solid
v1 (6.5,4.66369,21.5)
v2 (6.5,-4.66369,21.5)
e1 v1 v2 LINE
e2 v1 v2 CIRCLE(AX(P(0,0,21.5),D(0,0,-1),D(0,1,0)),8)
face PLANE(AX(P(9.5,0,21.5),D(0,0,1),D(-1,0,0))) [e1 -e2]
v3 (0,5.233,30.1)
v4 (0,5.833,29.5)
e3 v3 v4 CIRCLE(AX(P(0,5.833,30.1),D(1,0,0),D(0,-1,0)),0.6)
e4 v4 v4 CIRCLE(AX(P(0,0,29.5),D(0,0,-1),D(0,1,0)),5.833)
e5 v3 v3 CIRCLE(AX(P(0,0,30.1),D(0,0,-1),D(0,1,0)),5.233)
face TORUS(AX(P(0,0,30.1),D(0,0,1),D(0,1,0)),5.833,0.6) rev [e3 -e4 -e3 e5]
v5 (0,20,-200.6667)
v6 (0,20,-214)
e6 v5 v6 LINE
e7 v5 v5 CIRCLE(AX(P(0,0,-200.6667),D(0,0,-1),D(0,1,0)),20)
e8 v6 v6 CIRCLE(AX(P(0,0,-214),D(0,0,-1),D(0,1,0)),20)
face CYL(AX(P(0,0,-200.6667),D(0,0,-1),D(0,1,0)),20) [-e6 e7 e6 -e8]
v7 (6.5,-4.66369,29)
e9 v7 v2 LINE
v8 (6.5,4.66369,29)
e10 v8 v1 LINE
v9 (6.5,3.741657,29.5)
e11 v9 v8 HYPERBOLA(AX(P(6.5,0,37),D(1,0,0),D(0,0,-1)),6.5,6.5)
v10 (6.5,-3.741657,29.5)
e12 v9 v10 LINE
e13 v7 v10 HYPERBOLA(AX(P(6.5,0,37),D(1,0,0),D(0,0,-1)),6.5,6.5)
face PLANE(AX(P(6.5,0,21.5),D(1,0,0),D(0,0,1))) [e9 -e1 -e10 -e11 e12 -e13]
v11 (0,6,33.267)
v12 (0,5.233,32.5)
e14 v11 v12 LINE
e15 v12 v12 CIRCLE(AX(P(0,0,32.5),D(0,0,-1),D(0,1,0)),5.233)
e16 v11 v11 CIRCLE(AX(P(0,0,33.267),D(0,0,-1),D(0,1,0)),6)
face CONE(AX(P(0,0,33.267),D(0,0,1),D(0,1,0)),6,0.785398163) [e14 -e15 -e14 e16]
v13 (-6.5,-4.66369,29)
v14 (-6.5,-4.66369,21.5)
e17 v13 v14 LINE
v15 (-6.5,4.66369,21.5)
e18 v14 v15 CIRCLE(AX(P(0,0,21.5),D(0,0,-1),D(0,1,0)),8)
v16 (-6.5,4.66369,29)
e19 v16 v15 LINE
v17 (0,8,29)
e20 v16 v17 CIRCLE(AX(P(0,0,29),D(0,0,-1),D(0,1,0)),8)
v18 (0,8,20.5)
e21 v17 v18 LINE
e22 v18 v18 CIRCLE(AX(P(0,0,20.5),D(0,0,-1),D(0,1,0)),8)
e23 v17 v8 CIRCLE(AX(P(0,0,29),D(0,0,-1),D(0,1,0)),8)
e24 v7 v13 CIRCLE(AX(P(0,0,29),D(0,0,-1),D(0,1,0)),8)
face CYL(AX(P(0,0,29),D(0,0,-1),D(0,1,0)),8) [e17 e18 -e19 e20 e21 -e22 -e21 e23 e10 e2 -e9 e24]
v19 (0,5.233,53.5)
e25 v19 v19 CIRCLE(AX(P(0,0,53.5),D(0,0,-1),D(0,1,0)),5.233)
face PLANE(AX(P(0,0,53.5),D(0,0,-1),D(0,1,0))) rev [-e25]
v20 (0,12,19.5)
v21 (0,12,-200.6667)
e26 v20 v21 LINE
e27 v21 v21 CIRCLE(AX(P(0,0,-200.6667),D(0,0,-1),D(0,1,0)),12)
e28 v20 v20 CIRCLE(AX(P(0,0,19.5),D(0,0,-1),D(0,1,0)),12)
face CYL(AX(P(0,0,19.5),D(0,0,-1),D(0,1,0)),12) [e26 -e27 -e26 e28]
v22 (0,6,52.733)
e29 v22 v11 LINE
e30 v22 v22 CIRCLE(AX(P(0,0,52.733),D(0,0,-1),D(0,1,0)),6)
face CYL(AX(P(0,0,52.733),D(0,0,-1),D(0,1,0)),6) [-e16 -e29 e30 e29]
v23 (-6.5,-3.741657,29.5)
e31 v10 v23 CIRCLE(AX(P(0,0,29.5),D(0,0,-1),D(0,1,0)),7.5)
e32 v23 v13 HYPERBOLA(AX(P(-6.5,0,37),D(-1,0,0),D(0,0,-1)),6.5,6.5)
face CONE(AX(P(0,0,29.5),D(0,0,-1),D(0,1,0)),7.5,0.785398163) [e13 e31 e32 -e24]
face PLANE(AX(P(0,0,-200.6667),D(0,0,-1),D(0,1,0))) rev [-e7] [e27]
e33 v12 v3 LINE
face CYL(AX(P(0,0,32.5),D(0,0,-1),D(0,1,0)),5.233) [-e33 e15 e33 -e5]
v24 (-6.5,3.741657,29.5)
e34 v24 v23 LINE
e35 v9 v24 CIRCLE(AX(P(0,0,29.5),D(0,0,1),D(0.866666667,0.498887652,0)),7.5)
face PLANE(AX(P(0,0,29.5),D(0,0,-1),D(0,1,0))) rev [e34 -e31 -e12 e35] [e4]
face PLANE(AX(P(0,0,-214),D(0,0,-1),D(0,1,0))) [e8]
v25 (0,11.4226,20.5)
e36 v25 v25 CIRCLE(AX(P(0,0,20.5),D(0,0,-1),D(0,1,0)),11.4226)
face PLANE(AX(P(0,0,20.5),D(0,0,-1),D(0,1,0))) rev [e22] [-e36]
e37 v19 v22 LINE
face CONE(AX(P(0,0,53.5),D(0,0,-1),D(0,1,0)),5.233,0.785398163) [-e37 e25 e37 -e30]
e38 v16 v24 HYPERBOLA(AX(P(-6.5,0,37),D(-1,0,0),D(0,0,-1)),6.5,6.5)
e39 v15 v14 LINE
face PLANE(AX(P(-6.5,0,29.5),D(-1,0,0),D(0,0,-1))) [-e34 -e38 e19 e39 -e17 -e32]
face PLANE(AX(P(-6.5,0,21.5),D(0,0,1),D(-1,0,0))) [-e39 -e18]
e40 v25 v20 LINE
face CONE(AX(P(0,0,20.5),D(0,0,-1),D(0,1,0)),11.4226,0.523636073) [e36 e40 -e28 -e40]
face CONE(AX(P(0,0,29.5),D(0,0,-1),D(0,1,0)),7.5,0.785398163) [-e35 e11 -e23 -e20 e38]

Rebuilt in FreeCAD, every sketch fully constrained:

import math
import FreeCAD as App
import Part
import Sketcher
Q = App.Units.Quantity

doc = App.newDocument("Part")
body = doc.addObject("PartDesign::Body", "Body")

# Sketch on YZ plane
sketch1 = doc.addObject("Sketcher::SketchObject", "Sketch")
body.addObject(sketch1)
sketch1.AttachmentSupport = (doc.YZ_Plane, [""])
sketch1.MapMode = "FlatFace"
sketch1.addGeometry(Part.LineSegment(App.Vector(0, 29.5, 0), App.Vector(0, -214, 0)), False)
sketch1.addGeometry(Part.LineSegment(App.Vector(0, -214, 0), App.Vector(20, -214, 0)), False)
sketch1.addGeometry(Part.LineSegment(App.Vector(20, -214, 0), App.Vector(20, -200.7, 0)), False)
sketch1.addGeometry(Part.LineSegment(App.Vector(20, -200.7, 0), App.Vector(12, -200.7, 0)), False)
sketch1.addGeometry(Part.LineSegment(App.Vector(12, -200.7, 0), App.Vector(12, 19.5, 0)), False)
sketch1.addGeometry(Part.LineSegment(App.Vector(12, 19.5, 0), App.Vector(11.4, 20.5, 0)), False)
sketch1.addGeometry(Part.LineSegment(App.Vector(11.4, 20.5, 0), App.Vector(8, 20.5, 0)), False)
sketch1.addGeometry(Part.LineSegment(App.Vector(8, 20.5, 0), App.Vector(8, 29, 0)), False)
sketch1.addGeometry(Part.LineSegment(App.Vector(8, 29, 0), App.Vector(7.5, 29.5, 0)), False)
sketch1.addGeometry(Part.LineSegment(App.Vector(7.5, 29.5, 0), App.Vector(0, 29.5, 0)), False)
sketch1.addConstraint(Sketcher.Constraint("Coincident", 0, 2, 1, 1))
sketch1.addConstraint(Sketcher.Constraint("Coincident", 1, 2, 2, 1))
sketch1.addConstraint(Sketcher.Constraint("Coincident", 2, 2, 3, 1))
sketch1.addConstraint(Sketcher.Constraint("Coincident", 3, 2, 4, 1))
sketch1.addConstraint(Sketcher.Constraint("Coincident", 4, 2, 5, 1))
sketch1.addConstraint(Sketcher.Constraint("Coincident", 5, 2, 6, 1))
sketch1.addConstraint(Sketcher.Constraint("Coincident", 6, 2, 7, 1))
sketch1.addConstraint(Sketcher.Constraint("Coincident", 7, 2, 8, 1))
sketch1.addConstraint(Sketcher.Constraint("Coincident", 8, 2, 9, 1))
sketch1.addConstraint(Sketcher.Constraint("Coincident", 9, 2, 0, 1))
sketch1.addConstraint(Sketcher.Constraint("Vertical", 0))
sketch1.addConstraint(Sketcher.Constraint("Horizontal", 1))
sketch1.addConstraint(Sketcher.Constraint("Vertical", 2))
sketch1.addConstraint(Sketcher.Constraint("Horizontal", 3))
sketch1.addConstraint(Sketcher.Constraint("Vertical", 4))
sketch1.addConstraint(Sketcher.Constraint("Horizontal", 6))
sketch1.addConstraint(Sketcher.Constraint("Vertical", 7))
sketch1.addConstraint(Sketcher.Constraint("Horizontal", 9))
sketch1.addConstraint(Sketcher.Constraint("PointOnObject", 0, 2, -2))
sketch1.addConstraint(Sketcher.Constraint("DistanceX", 1, 1, 1, 2, 20.0))
sketch1.addConstraint(Sketcher.Constraint("DistanceX", 3, 2, 3, 1, 8.0))
sketch1.addConstraint(Sketcher.Constraint("Angle", 8, Q("135 deg")))
sketch1.addConstraint(Sketcher.Constraint("DistanceX", 9, 2, 9, 1, 7.5))
sketch1.addConstraint(Sketcher.Constraint("DistanceY", 0, 2, 0, 1, 243.5))
sketch1.addConstraint(Sketcher.Constraint("DistanceY", 7, 1, 7, 2, 8.5))
sketch1.addConstraint(Sketcher.Constraint("DistanceY", 0, 2, -1, 1, 214.0))
sketch1.addConstraint(Sketcher.Constraint("DistanceX", -1, 1, 6, 2, 8.0))
sketch1.addConstraint(Sketcher.Constraint("DistanceY", 4, 2, 5, 2, 1.0))
sketch1.addConstraint(Sketcher.Constraint("DistanceX", 6, 2, 6, 1, 3.4226))
sketch1.addConstraint(Sketcher.Constraint("DistanceY", 2, 1, 2, 2, 13.3333))
revolution = doc.addObject("PartDesign::Revolution", "Revolution")
body.addObject(revolution)
revolution.Profile = sketch1
revolution.ReferenceAxis = (sketch1, ["V_Axis"])
revolution.Angle = 360

# Sketch on XZ plane
sketch2 = doc.addObject("Sketcher::SketchObject", "Sketch001")
body.addObject(sketch2)
sketch2.AttachmentSupport = (doc.XZ_Plane, [""])
sketch2.MapMode = "FlatFace"
sketch2.addGeometry(Part.LineSegment(App.Vector(-6.5, 21.5, 0), App.Vector(-9.5, 21.5, 0)), False)
sketch2.addGeometry(Part.LineSegment(App.Vector(-9.5, 21.5, 0), App.Vector(-9.5, 32.5, 0)), False)
sketch2.addGeometry(Part.LineSegment(App.Vector(-9.5, 32.5, 0), App.Vector(9.5, 32.5, 0)), False)
sketch2.addGeometry(Part.LineSegment(App.Vector(9.5, 32.5, 0), App.Vector(9.5, 21.5, 0)), False)
sketch2.addGeometry(Part.LineSegment(App.Vector(9.5, 21.5, 0), App.Vector(6.5, 21.5, 0)), False)
sketch2.addGeometry(Part.LineSegment(App.Vector(6.5, 21.5, 0), App.Vector(6.5, 29.5, 0)), False)
sketch2.addGeometry(Part.LineSegment(App.Vector(6.5, 29.5, 0), App.Vector(-6.5, 29.5, 0)), False)
sketch2.addGeometry(Part.LineSegment(App.Vector(-6.5, 29.5, 0), App.Vector(-6.5, 21.5, 0)), False)
sketch2.addConstraint(Sketcher.Constraint("Coincident", 0, 2, 1, 1))
sketch2.addConstraint(Sketcher.Constraint("Coincident", 1, 2, 2, 1))
sketch2.addConstraint(Sketcher.Constraint("Coincident", 2, 2, 3, 1))
sketch2.addConstraint(Sketcher.Constraint("Coincident", 3, 2, 4, 1))
sketch2.addConstraint(Sketcher.Constraint("Coincident", 4, 2, 5, 1))
sketch2.addConstraint(Sketcher.Constraint("Coincident", 5, 2, 6, 1))
sketch2.addConstraint(Sketcher.Constraint("Coincident", 6, 2, 7, 1))
sketch2.addConstraint(Sketcher.Constraint("Coincident", 7, 2, 0, 1))
sketch2.addConstraint(Sketcher.Constraint("Horizontal", 0))
sketch2.addConstraint(Sketcher.Constraint("Vertical", 1))
sketch2.addConstraint(Sketcher.Constraint("Horizontal", 2))
sketch2.addConstraint(Sketcher.Constraint("Vertical", 3))
sketch2.addConstraint(Sketcher.Constraint("Horizontal", 4))
sketch2.addConstraint(Sketcher.Constraint("Vertical", 5))
sketch2.addConstraint(Sketcher.Constraint("Horizontal", 6))
sketch2.addConstraint(Sketcher.Constraint("Vertical", 7))
sketch2.addConstraint(Sketcher.Constraint("Symmetric", 0, 2, 3, 2, -2))
sketch2.addConstraint(Sketcher.Constraint("Equal", 0, 4))
sketch2.addConstraint(Sketcher.Constraint("DistanceX", 0, 2, 0, 1, 3.0))
sketch2.addConstraint(Sketcher.Constraint("DistanceX", 2, 1, 2, 2, 19.0))
sketch2.addConstraint(Sketcher.Constraint("DistanceY", 1, 1, 1, 2, 11.0))
sketch2.addConstraint(Sketcher.Constraint("DistanceY", 5, 1, 5, 2, 8.0))
sketch2.addConstraint(Sketcher.Constraint("DistanceY", -1, 1, 0, 2, 21.5))
pocket1 = doc.addObject("PartDesign::Pocket", "Pocket")
body.addObject(pocket1)
pocket1.Profile = sketch2
pocket1.Length = 32
pocket1.Midplane = True

# Sketch on YZ plane
sketch3 = doc.addObject("Sketcher::SketchObject", "Sketch002")
body.addObject(sketch3)
sketch3.AttachmentSupport = (doc.YZ_Plane, [""])
sketch3.MapMode = "FlatFace"
sketch3.addGeometry(Part.LineSegment(App.Vector(0, 53.5, 0), App.Vector(0, 29.5, 0)), False)
sketch3.addGeometry(Part.LineSegment(App.Vector(0, 29.5, 0), App.Vector(5.8, 29.5, 0)), False)
sketch3.addGeometry(Part.ArcOfCircle(Part.Circle(App.Vector(5.8, 30.1, 0), App.Vector(0, 0, 1), 0.6), math.radians(180), math.radians(270)), False)
sketch3.addGeometry(Part.LineSegment(App.Vector(5.2, 30.1, 0), App.Vector(5.2, 32.5, 0)), False)
sketch3.addGeometry(Part.LineSegment(App.Vector(5.2, 32.5, 0), App.Vector(6, 33.3, 0)), False)
sketch3.addGeometry(Part.LineSegment(App.Vector(6, 33.3, 0), App.Vector(6, 52.7, 0)), False)
sketch3.addGeometry(Part.LineSegment(App.Vector(6, 52.7, 0), App.Vector(5.2, 53.5, 0)), False)
sketch3.addGeometry(Part.LineSegment(App.Vector(5.2, 53.5, 0), App.Vector(0, 53.5, 0)), False)
sketch3.addConstraint(Sketcher.Constraint("Coincident", 0, 2, 1, 1))
sketch3.addConstraint(Sketcher.Constraint("Tangent", 1, 2, 2, 2))
sketch3.addConstraint(Sketcher.Constraint("Tangent", 2, 1, 3, 1))
sketch3.addConstraint(Sketcher.Constraint("Coincident", 3, 2, 4, 1))
sketch3.addConstraint(Sketcher.Constraint("Coincident", 4, 2, 5, 1))
sketch3.addConstraint(Sketcher.Constraint("Coincident", 5, 2, 6, 1))
sketch3.addConstraint(Sketcher.Constraint("Coincident", 6, 2, 7, 1))
sketch3.addConstraint(Sketcher.Constraint("Coincident", 7, 2, 0, 1))
sketch3.addConstraint(Sketcher.Constraint("Vertical", 0))
sketch3.addConstraint(Sketcher.Constraint("Horizontal", 1))
sketch3.addConstraint(Sketcher.Constraint("Vertical", 3))
sketch3.addConstraint(Sketcher.Constraint("Vertical", 5))
sketch3.addConstraint(Sketcher.Constraint("Horizontal", 7))
sketch3.addConstraint(Sketcher.Constraint("PointOnObject", 0, 2, -2))
sketch3.addConstraint(Sketcher.Constraint("Perpendicular", 4, 6))
sketch3.addConstraint(Sketcher.Constraint("Vertical", 3, 2, 6, 2))
sketch3.addConstraint(Sketcher.Constraint("Equal", 4, 6))
sketch3.addConstraint(Sketcher.Constraint("Radius", 2, 0.6))
sketch3.addConstraint(Sketcher.Constraint("DistanceY", 0, 2, 0, 1, 24.0))
sketch3.addConstraint(Sketcher.Constraint("DistanceY", 3, 1, 3, 2, 2.4))
sketch3.addConstraint(Sketcher.Constraint("DistanceX", -1, 1, 4, 2, 6.0))
sketch3.addConstraint(Sketcher.Constraint("DistanceY", -1, 1, 2, 3, 30.1))
sketch3.addConstraint(Sketcher.Constraint("DistanceX", 1, 1, 1, 2, 5.833))
revolution2 = doc.addObject("PartDesign::Revolution", "Revolution001")
body.addObject(revolution2)
revolution2.Profile = sketch3
revolution2.ReferenceAxis = (sketch3, ["V_Axis"])
revolution2.Angle = 360

doc.recompute()
